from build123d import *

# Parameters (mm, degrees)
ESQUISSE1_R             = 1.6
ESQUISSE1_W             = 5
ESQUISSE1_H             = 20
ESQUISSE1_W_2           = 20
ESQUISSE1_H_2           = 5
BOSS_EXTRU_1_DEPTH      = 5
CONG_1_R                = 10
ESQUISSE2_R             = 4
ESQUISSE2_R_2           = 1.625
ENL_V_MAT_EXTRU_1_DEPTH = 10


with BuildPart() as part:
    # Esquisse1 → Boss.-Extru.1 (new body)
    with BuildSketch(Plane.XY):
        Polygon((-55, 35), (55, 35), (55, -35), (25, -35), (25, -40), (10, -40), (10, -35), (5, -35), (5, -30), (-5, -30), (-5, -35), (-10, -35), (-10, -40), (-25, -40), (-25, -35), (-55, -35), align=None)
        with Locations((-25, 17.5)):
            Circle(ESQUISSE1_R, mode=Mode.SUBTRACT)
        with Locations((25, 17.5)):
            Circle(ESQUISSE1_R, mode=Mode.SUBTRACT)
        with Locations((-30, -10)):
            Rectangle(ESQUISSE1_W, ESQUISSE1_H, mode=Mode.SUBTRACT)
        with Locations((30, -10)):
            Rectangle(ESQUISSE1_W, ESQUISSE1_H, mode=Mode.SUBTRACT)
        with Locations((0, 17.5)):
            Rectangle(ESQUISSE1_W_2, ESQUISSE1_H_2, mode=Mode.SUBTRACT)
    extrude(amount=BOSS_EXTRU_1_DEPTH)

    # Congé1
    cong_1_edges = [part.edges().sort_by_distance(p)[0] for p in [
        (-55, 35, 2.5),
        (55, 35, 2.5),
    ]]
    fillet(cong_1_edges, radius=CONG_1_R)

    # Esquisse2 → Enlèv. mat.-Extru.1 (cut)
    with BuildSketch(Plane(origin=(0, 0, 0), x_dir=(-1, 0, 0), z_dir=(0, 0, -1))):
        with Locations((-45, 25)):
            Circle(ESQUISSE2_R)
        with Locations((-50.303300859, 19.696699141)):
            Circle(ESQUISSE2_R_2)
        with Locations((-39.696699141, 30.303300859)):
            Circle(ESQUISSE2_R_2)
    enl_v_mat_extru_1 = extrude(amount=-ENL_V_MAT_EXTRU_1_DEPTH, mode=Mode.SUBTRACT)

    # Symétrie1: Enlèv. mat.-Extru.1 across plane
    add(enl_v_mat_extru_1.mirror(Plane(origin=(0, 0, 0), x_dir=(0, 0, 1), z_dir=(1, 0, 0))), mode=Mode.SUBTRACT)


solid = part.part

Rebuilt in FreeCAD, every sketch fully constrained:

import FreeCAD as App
import Part
import Sketcher
Q = App.Units.Quantity


def edges_at(feature, points):
    """Names of the edges that pass closest to the given points."""
    edges = feature.Shape.Edges
    near = lambda p: min(range(len(edges)), key=lambda i: edges[i].distToShape(Part.Vertex(*p))[0])
    return sorted({f"Edge{near(p) + 1}" for p in points})

doc = App.newDocument("Part")
body = doc.addObject("PartDesign::Body", "Body")

sketch1 = doc.addObject("Sketcher::SketchObject", "Sketch")
body.addObject(sketch1)
sketch1.AttachmentSupport = (doc.XY_Plane, [""])
sketch1.MapMode = "FlatFace"
sketch1.addGeometry([
    Part.LineSegment(App.Vector(55, 35, 0), App.Vector(-55, 35, 0)),
    Part.LineSegment(App.Vector(-55, 35, 0), App.Vector(-55, -35, 0)),
    Part.LineSegment(App.Vector(-55, -35, 0), App.Vector(-25, -35, 0)),
    Part.LineSegment(App.Vector(-25, -35, 0), App.Vector(-25, -40, 0)),
    Part.LineSegment(App.Vector(-25, -40, 0), App.Vector(-10, -40, 0)),
    Part.LineSegment(App.Vector(-10, -40, 0), App.Vector(-10, -35, 0)),
    Part.LineSegment(App.Vector(-10, -35, 0), App.Vector(-5, -35, 0)),
    Part.LineSegment(App.Vector(-5, -35, 0), App.Vector(-5, -30, 0)),
    Part.LineSegment(App.Vector(-5, -30, 0), App.Vector(5, -30, 0)),
    Part.LineSegment(App.Vector(5, -30, 0), App.Vector(5, -35, 0)),
    Part.LineSegment(App.Vector(5, -35, 0), App.Vector(10, -35, 0)),
    Part.LineSegment(App.Vector(10, -35, 0), App.Vector(10, -40, 0)),
    Part.LineSegment(App.Vector(10, -40, 0), App.Vector(25, -40, 0)),
    Part.LineSegment(App.Vector(25, -40, 0), App.Vector(25, -35, 0)),
    Part.LineSegment(App.Vector(25, -35, 0), App.Vector(55, -35, 0)),
    Part.LineSegment(App.Vector(55, -35, 0), App.Vector(55, 35, 0)),
    Part.LineSegment(App.Vector(27.5, -20, 0), App.Vector(27.5, 0, 0)),
    Part.LineSegment(App.Vector(27.5, 0, 0), App.Vector(32.5, 0, 0)),
    Part.LineSegment(App.Vector(32.5, 0, 0), App.Vector(32.5, -20, 0)),
    Part.LineSegment(App.Vector(32.5, -20, 0), App.Vector(27.5, -20, 0)),
    Part.LineSegment(App.Vector(-32.5, -20, 0), App.Vector(-32.5, 0, 0)),
    Part.LineSegment(App.Vector(-32.5, 0, 0), App.Vector(-27.5, 0, 0)),
    Part.LineSegment(App.Vector(-27.5, 0, 0), App.Vector(-27.5, -20, 0)),
    Part.LineSegment(App.Vector(-27.5, -20, 0), App.Vector(-32.5, -20, 0)),
    Part.Circle(App.Vector(25, 17.5, 0), App.Vector(0, 0, 1), 1.6),
    Part.LineSegment(App.Vector(-10, 15, 0), App.Vector(-10, 20, 0)),
    Part.LineSegment(App.Vector(-10, 20, 0), App.Vector(10, 20, 0)),
    Part.LineSegment(App.Vector(10, 20, 0), App.Vector(10, 15, 0)),
    Part.LineSegment(App.Vector(10, 15, 0), App.Vector(-10, 15, 0)),
    Part.Circle(App.Vector(-25, 17.5, 0), App.Vector(0, 0, 1), 1.6),
], False)
sketch1.addConstraint([
    Sketcher.Constraint("Coincident", 0, 2, 1, 1),
    Sketcher.Constraint("Coincident", 1, 2, 2, 1),
    Sketcher.Constraint("Coincident", 2, 2, 3, 1),
    Sketcher.Constraint("Coincident", 3, 2, 4, 1),
    Sketcher.Constraint("Coincident", 4, 2, 5, 1),
    Sketcher.Constraint("Coincident", 5, 2, 6, 1),
    Sketcher.Constraint("Coincident", 6, 2, 7, 1),
    Sketcher.Constraint("Coincident", 7, 2, 8, 1),
    Sketcher.Constraint("Coincident", 8, 2, 9, 1),
    Sketcher.Constraint("Coincident", 9, 2, 10, 1),
    Sketcher.Constraint("Coincident", 10, 2, 11, 1),
    Sketcher.Constraint("Coincident", 11, 2, 12, 1),
    Sketcher.Constraint("Coincident", 12, 2, 13, 1),
    Sketcher.Constraint("Coincident", 13, 2, 14, 1),
    Sketcher.Constraint("Coincident", 14, 2, 15, 1),
    Sketcher.Constraint("Coincident", 15, 2, 0, 1),
    Sketcher.Constraint("Coincident", 16, 2, 17, 1),
    Sketcher.Constraint("Coincident", 17, 2, 18, 1),
    Sketcher.Constraint("Coincident", 18, 2, 19, 1),
    Sketcher.Constraint("Coincident", 19, 2, 16, 1),
    Sketcher.Constraint("Coincident", 20, 2, 21, 1),
    Sketcher.Constraint("Coincident", 21, 2, 22, 1),
    Sketcher.Constraint("Coincident", 22, 2, 23, 1),
    Sketcher.Constraint("Coincident", 23, 2, 20, 1),
    Sketcher.Constraint("Coincident", 25, 2, 26, 1),
    Sketcher.Constraint("Coincident", 26, 2, 27, 1),
    Sketcher.Constraint("Coincident", 27, 2, 28, 1),
    Sketcher.Constraint("Coincident", 28, 2, 25, 1),
    Sketcher.Constraint("Horizontal", 0),
    Sketcher.Constraint("Vertical", 1),
    Sketcher.Constraint("Horizontal", 2),
    Sketcher.Constraint("Vertical", 3),
    Sketcher.Constraint("Horizontal", 4),
    Sketcher.Constraint("Vertical", 5),
    Sketcher.Constraint("Horizontal", 6),
    Sketcher.Constraint("Vertical", 7),
    Sketcher.Constraint("Horizontal", 8),
    Sketcher.Constraint("Vertical", 9),
    Sketcher.Constraint("Horizontal", 10),
    Sketcher.Constraint("Vertical", 11),
    Sketcher.Constraint("Horizontal", 12),
    Sketcher.Constraint("Vertical", 13),
    Sketcher.Constraint("Horizontal", 14),
    Sketcher.Constraint("Vertical", 15),
    Sketcher.Constraint("Vertical", 16),
    Sketcher.Constraint("Horizontal", 17),
    Sketcher.Constraint("Vertical", 18),
    Sketcher.Constraint("Horizontal", 19),
    Sketcher.Constraint("Vertical", 20),
    Sketcher.Constraint("Horizontal", 21),
    Sketcher.Constraint("Vertical", 22),
    Sketcher.Constraint("Horizontal", 23),
    Sketcher.Constraint("Vertical", 25),
    Sketcher.Constraint("Horizontal", 26),
    Sketcher.Constraint("Vertical", 27),
    Sketcher.Constraint("Horizontal", 28),
    Sketcher.Constraint("Equal", 24, 29),
    Sketcher.Constraint("Symmetric", 0, 2, 14, 2, -1, 1),
    Sketcher.Constraint("Symmetric", 17, 2, 20, 2, -1, 1),
    Sketcher.Constraint("Symmetric", 24, 3, 29, 3, -2),
    Sketcher.Constraint("Symmetric", 6, 2, 9, 2, -2),
    Sketcher.Constraint("Symmetric", 4, 2, 11, 2, -2),
    Sketcher.Constraint("Symmetric", 2, 2, 13, 2, -2),
    Sketcher.Constraint("Symmetric", 16, 2, 21, 2, -2),
    Sketcher.Constraint("Horizontal", 2, 2, 5, 2),
    Sketcher.Constraint("Horizontal", 19, 2, 22, 2),
    Sketcher.Constraint("Vertical", 29, 3, 2, 2),
    Sketcher.Constraint("Vertical", 5, 2, 25, 2),
    Sketcher.Constraint("Vertical", 11, 2, 26, 2),
    Sketcher.Constraint("Equal", 10, 17),
    Sketcher.Constraint("Equal", 23, 3),
    Sketcher.Constraint("Equal", 5, 7),
    Sketcher.Constraint("Equal", 28, 16),
    Sketcher.Constraint("Equal", 13, 25),
    Sketcher.Constraint("Diameter", 24, Q("3.2 mm")),
    Sketcher.Constraint("DistanceX", 0, 2, 0, 1, Q("110 mm")),
    Sketcher.Constraint("DistanceX", 2, 1, 2, 2, Q("30 mm")),
    Sketcher.Constraint("DistanceX", 4, 1, 4, 2, Q("15 mm")),
    Sketcher.Constraint("DistanceX", 6, 1, 6, 2, Q("5 mm")),
    Sketcher.Constraint("DistanceY", 1, 2, 1, 1, Q("70 mm")),
    Sketcher.Constraint("DistanceY", -1, 1, 25, 2, Q("20 mm")),
    Sketcher.Constraint("DistanceY", -1, 1, 24, 3, Q("17.5 mm")),
    Sketcher.Constraint("DistanceX", -1, 1, 16, 2, Q("27.5 mm")),
])
pad1 = doc.addObject("PartDesign::Pad", "Pad")
body.addObject(pad1)
pad1.Profile = sketch1
pad1.Length = 5
doc.recompute()

fillet = doc.addObject("PartDesign::Fillet", "Fillet")
body.addObject(fillet)
fillet.Base = (pad1, edges_at(pad1, [(-55, 35, 2.5), (55, 35, 2.5)]))
fillet.Radius = 10

sketch2 = doc.addObject("Sketcher::SketchObject", "Sketch001")
body.addObject(sketch2)
sketch2.AttachmentSupport = (doc.XY_Plane, [""])
sketch2.MapMode = "FlatFace"
sketch2.addGeometry([
    Part.Circle(App.Vector(45, 25, 0), App.Vector(0, 0, 1), 4),
    Part.Circle(App.Vector(50.3, 19.7, 0), App.Vector(0, 0, 1), 1.6),
    Part.Circle(App.Vector(39.7, 30.3, 0), App.Vector(0, 0, 1), 1.6),
], False)
sketch2.addConstraint([
    Sketcher.Constraint("Equal", 1, 2),
    Sketcher.Constraint("Diameter", 0, Q("8 mm")),
    Sketcher.Constraint("Diameter", 1, Q("3.25 mm")),
    Sketcher.Constraint("DistanceX", -1, 1, 0, 3, Q("45 mm")),
    Sketcher.Constraint("DistanceY", -1, 1, 0, 3, Q("25 mm")),
    Sketcher.Constraint("DistanceX", -1, 1, 1, 3, Q("50.303301 mm")),
    Sketcher.Constraint("DistanceY", -1, 1, 1, 3, Q("19.696699 mm")),
    Sketcher.Constraint("DistanceX", -1, 1, 2, 3, Q("39.696699 mm")),
    Sketcher.Constraint("DistanceY", -1, 1, 2, 3, Q("30.303301 mm")),
])
pocket1 = doc.addObject("PartDesign::Pocket", "Pocket")
body.addObject(pocket1)
pocket1.Profile = sketch2
pocket1.Length = 10
pocket1.Reversed = True
doc.recompute()

mirrored = doc.addObject("PartDesign::Mirrored", "Mirrored")
body.addObject(mirrored)
mirrored.Originals = [pocket1]
mirrored.MirrorPlane = (doc.YZ_Plane, [""])
body.Tip = mirrored

doc.recompute()
